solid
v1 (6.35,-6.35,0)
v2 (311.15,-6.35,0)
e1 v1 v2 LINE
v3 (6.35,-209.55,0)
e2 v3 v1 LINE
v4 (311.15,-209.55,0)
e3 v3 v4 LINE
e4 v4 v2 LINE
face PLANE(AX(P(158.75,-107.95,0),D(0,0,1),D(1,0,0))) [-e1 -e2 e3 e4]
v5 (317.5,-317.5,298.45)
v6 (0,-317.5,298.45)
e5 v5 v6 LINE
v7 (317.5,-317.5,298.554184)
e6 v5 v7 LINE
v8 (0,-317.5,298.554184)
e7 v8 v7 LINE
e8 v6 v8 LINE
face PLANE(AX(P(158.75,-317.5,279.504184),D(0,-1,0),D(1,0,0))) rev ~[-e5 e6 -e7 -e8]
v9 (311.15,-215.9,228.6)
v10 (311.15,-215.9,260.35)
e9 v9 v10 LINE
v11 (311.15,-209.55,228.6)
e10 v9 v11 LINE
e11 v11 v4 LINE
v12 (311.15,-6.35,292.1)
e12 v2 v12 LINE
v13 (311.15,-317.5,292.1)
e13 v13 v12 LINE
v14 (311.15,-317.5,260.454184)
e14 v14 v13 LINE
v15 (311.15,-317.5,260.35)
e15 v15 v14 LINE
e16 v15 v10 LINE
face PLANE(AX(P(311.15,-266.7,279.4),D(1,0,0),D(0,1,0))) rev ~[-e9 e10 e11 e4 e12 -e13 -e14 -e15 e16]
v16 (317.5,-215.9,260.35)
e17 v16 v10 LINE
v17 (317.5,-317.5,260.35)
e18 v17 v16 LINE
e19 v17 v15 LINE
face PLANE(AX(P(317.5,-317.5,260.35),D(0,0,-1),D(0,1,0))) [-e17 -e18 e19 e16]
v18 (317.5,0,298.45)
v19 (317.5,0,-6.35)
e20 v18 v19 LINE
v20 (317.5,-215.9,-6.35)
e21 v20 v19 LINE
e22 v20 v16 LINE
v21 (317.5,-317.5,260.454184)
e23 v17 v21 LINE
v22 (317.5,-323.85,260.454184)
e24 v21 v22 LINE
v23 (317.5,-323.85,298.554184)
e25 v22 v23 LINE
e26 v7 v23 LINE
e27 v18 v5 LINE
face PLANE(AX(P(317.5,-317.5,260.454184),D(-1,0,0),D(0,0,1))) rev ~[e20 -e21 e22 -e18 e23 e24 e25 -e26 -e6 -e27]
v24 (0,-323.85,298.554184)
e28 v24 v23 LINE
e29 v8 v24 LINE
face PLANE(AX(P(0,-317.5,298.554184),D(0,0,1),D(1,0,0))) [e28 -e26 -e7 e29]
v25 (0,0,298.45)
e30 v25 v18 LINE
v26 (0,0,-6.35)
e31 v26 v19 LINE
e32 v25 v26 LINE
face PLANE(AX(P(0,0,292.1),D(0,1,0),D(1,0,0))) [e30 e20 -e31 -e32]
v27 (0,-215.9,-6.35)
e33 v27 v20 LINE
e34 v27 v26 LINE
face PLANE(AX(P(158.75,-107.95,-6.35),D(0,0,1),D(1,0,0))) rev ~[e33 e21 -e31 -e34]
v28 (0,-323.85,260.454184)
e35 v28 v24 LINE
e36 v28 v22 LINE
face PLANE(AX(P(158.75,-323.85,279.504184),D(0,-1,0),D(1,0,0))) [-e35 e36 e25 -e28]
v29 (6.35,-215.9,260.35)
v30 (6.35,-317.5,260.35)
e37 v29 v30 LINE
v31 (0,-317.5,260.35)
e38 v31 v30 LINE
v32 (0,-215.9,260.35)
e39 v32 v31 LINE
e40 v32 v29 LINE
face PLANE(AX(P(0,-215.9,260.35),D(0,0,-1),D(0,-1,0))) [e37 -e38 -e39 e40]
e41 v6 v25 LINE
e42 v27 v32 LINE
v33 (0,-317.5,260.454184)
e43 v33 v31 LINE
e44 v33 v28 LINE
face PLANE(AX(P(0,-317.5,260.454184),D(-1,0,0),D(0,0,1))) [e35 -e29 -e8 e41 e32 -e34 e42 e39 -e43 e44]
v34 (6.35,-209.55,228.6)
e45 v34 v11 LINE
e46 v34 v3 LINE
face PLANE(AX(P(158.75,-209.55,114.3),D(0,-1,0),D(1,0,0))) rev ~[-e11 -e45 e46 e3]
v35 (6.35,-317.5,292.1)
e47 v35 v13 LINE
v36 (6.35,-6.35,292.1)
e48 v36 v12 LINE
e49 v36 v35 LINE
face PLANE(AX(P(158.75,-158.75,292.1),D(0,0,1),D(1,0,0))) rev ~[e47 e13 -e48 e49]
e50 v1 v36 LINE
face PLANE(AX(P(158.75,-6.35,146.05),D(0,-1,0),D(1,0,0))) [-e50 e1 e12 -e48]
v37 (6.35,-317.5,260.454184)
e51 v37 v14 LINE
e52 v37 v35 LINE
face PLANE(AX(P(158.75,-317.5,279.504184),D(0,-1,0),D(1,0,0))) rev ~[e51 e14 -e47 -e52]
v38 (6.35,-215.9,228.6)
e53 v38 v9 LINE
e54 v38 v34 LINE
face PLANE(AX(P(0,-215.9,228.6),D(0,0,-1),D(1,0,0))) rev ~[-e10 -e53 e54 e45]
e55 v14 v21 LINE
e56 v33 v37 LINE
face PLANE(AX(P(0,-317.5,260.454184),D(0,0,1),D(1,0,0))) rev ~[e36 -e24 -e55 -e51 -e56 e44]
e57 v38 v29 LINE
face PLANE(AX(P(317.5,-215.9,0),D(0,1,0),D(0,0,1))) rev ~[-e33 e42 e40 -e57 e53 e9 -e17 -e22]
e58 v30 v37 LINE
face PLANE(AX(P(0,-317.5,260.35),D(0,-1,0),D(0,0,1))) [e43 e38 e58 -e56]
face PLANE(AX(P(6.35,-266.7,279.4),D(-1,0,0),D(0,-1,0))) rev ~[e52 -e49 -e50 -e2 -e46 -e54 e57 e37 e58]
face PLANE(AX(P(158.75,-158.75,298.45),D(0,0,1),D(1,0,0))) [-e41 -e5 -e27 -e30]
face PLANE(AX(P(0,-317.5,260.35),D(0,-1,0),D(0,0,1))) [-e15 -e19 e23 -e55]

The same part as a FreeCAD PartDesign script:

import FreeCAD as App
import Part
import Sketcher
from FreeCAD import Vector
Q = App.Units.Quantity


def add_polygon(sketch, points):
    """Adds a closed chain of lines whose ends are joined by coincident constraints."""
    first, n = sketch.GeometryCount, len(points)
    for a, b in zip(points, points[1:] + points[:1]):
        sketch.addGeometry(Part.LineSegment(App.Vector(*a, 0), App.Vector(*b, 0)), False)
    for i in range(n):
        sketch.addConstraint(Sketcher.Constraint("Coincident", first + i, 2, first + (i + 1) % n, 1))

doc = App.newDocument("Part")
body = doc.addObject("PartDesign::Body", "Body")

# Sketch on XY plane
sketch1 = body.newObject("Sketcher::SketchObject", "Sketch")
sketch1.AttachmentSupport = (doc.getObject("XY_Plane"), [""])
sketch1.MapMode = "FlatFace"
add_polygon(sketch1, [(0, 0), (0, -216), (318, -216), (318, 0)])  # lines 0-3
sketch1.addConstraint([
    Sketcher.Constraint("Vertical", 0),
    Sketcher.Constraint("Horizontal", 1),
    Sketcher.Constraint("Vertical", 2),
    Sketcher.Constraint("Horizontal", 3),
    Sketcher.Constraint("Coincident", 3, 2, -1, 1),
    Sketcher.Constraint("DistanceX", 1, 1, 1, 2, Q("12.5 in")),
    Sketcher.Constraint("DistanceY", 0, 2, 0, 1, Q("8.5 in")),
])
pad1 = body.newObject("PartDesign::Pad", "Pad")
pad1.Profile = sketch1
pad1.Length = Q("0.25 in")
pad1.Reversed = True

# Sketch on XZ plane
sketch2 = body.newObject("Sketcher::SketchObject", "Sketch001")
sketch2.AttachmentSupport = (doc.getObject("XZ_Plane"), [""])
sketch2.MapMode = "FlatFace"
add_polygon(sketch2, [(0, 292), (0, 0), (318, 0), (318, 292)])  # lines 0-3
sketch2.addConstraint([
    Sketcher.Constraint("Vertical", 0),
    Sketcher.Constraint("Horizontal", 1),
    Sketcher.Constraint("Vertical", 2),
    Sketcher.Constraint("Horizontal", 3),
    Sketcher.Constraint("Coincident", 0, 2, -1, 1),
    Sketcher.Constraint("DistanceX", 1, 1, 1, 2, Q("12.5 in")),
    Sketcher.Constraint("DistanceY", 0, 2, 0, 1, Q("11.5 in")),
])
pad2 = body.newObject("PartDesign::Pad", "Pad001")
pad2.Profile = sketch2
pad2.Length = Q("0.25 in")

# Sketch on YZ plane
sketch3 = body.newObject("Sketcher::SketchObject", "Sketch002")
sketch3.AttachmentSupport = (doc.getObject("YZ_Plane"), [""])
sketch3.MapMode = "FlatFace"
add_polygon(sketch3, [(-216, 292), (-216, 0), (0, 0), (0, 292)])  # lines 0-3
sketch3.addConstraint([
    Sketcher.Constraint("Vertical", 0),
    Sketcher.Constraint("Horizontal", 1),
    Sketcher.Constraint("Vertical", 2),
    Sketcher.Constraint("Horizontal", 3),
    Sketcher.Constraint("Coincident", 1, 2, -1, 1),
    Sketcher.Constraint("DistanceX", 1, 1, 1, 2, Q("8.5 in")),
    Sketcher.Constraint("DistanceY", 0, 2, 0, 1, Q("11.5 in")),
])
pad3 = body.newObject("PartDesign::Pad", "Pad002")
pad3.Profile = sketch3
pad3.Length = Q("0.25 in")

# Sketch on YZ plane
sketch4 = body.newObject("Sketcher::SketchObject", "Sketch003")
sketch4.AttachmentSupport = (doc.getObject("YZ_Plane"), [""])
sketch4.MapMode = "FlatFace"
sketch4.AttachmentOffset = App.Placement(Vector(0, 0, 12.5 * 25.4), App.Rotation())
add_polygon(sketch4, [(-216, 292), (-216, 0), (0, 0), (0, 292)])  # lines 0-3
sketch4.addConstraint([
    Sketcher.Constraint("Vertical", 0),
    Sketcher.Constraint("Horizontal", 1),
    Sketcher.Constraint("Vertical", 2),
    Sketcher.Constraint("Horizontal", 3),
    Sketcher.Constraint("Coincident", 1, 2, -1, 1),
    Sketcher.Constraint("DistanceX", 1, 1, 1, 2, Q("8.5 in")),
    Sketcher.Constraint("DistanceY", 0, 2, 0, 1, Q("11.5 in")),
])
pad4 = body.newObject("PartDesign::Pad", "Pad003")
pad4.Profile = sketch4
pad4.Length = Q("0.25 in")
pad4.Reversed = True

# Sketch on XY plane
sketch5 = body.newObject("Sketcher::SketchObject", "Sketch004")
sketch5.AttachmentSupport = (doc.getObject("XY_Plane"), [""])
sketch5.MapMode = "FlatFace"
sketch5.AttachmentOffset = App.Placement(Vector(0, 0, 11.5 * 25.4), App.Rotation())
add_polygon(sketch5, [(0, 0), (0, -318), (318, -318), (318, 0)])  # lines 0-3
sketch5.addConstraint([
    Sketcher.Constraint("Vertical", 0),
    Sketcher.Constraint("Horizontal", 1),
    Sketcher.Constraint("Vertical", 2),
    Sketcher.Constraint("Horizontal", 3),
    Sketcher.Constraint("Coincident", 3, 2, -1, 1),
    Sketcher.Constraint("Equal", 3, 0),
    Sketcher.Constraint("DistanceX", 1, 1, 1, 2, Q("12.5 in")),
])
pad5 = body.newObject("PartDesign::Pad", "Pad004")
pad5.Profile = sketch5
pad5.Length = Q("0.25 in")

# Sketch on XZ plane
sketch6 = body.newObject("Sketcher::SketchObject", "Sketch005")
sketch6.AttachmentSupport = (doc.getObject("XZ_Plane"), [""])
sketch6.MapMode = "FlatFace"
sketch6.AttachmentOffset = App.Placement(Vector(0, 0, 8.5 * 25.4), App.Rotation())
add_polygon(sketch6, [(0, 229), (0, 0), (318, 0), (318, 229)])  # lines 0-3
sketch6.addConstraint([
    Sketcher.Constraint("Vertical", 0),
    Sketcher.Constraint("Horizontal", 1),
    Sketcher.Constraint("Vertical", 2),
    Sketcher.Constraint("Horizontal", 3),
    Sketcher.Constraint("Coincident", 0, 2, -1, 1),
    Sketcher.Constraint("DistanceY", 0, 2, 0, 1, Q("9 in")),
    Sketcher.Constraint("DistanceX", 1, 1, 1, 2, Q("12.5 in")),
])
pad6 = body.newObject("PartDesign::Pad", "Pad005")
pad6.Profile = sketch6
pad6.Length = Q("0.25 in")
pad6.Reversed = True

# Sketch on YZ plane
sketch7 = body.newObject("Sketcher::SketchObject", "Sketch006")
sketch7.AttachmentSupport = (doc.getObject("YZ_Plane"), [""])
sketch7.MapMode = "FlatFace"
sketch7.AttachmentOffset = App.Placement(Vector(0, 0, 12.5 * 25.4), App.Rotation())
add_polygon(sketch7, [(-318, 298), (-318, 260), (-216, 260), (-216, 298)])  # lines 0-3
sketch7.addConstraint([
    Sketcher.Constraint("Vertical", 0),
    Sketcher.Constraint("Horizontal", 1),
    Sketcher.Constraint("Vertical", 2),
    Sketcher.Constraint("Horizontal", 3),
    Sketcher.Constraint("DistanceX", 1, 1, 1, 2, Q("4 in")),
    Sketcher.Constraint("DistanceY", 0, 2, 0, 1, Q("1.5 in")),
    Sketcher.Constraint("DistanceX", 0, 2, -1, 1, Q("12.5 in")),
    Sketcher.Constraint("DistanceY", -1, 1, 0, 2, Q("10.25 in")),
])
pad7 = body.newObject("PartDesign::Pad", "Pad006")
pad7.Profile = sketch7
pad7.Length = Q("0.25 in")
pad7.Reversed = True

# Sketch on YZ plane
sketch8 = body.newObject("Sketcher::SketchObject", "Sketch007")
sketch8.AttachmentSupport = (doc.getObject("YZ_Plane"), [""])
sketch8.MapMode = "FlatFace"
add_polygon(sketch8, [(-216, 298), (-216, 260), (-318, 260), (-318, 298)])  # lines 0-3
sketch8.addConstraint([
    Sketcher.Constraint("Vertical", 0),
    Sketcher.Constraint("Horizontal", 1),
    Sketcher.Constraint("Vertical", 2),
    Sketcher.Constraint("Horizontal", 3),
    Sketcher.Constraint("DistanceX", 1, 2, 1, 1, Q("4 in")),
    Sketcher.Constraint("DistanceY", 0, 2, 0, 1, Q("1.5 in")),
    Sketcher.Constraint("DistanceX", 0, 2, -1, 1, Q("8.5 in")),
    Sketcher.Constraint("DistanceY", -1, 1, 0, 2, Q("10.25 in")),
])
pad8 = body.newObject("PartDesign::Pad", "Pad007")
pad8.Profile = sketch8
pad8.Length = Q("0.25 in")

# Sketch on XZ plane
sketch9 = body.newObject("Sketcher::SketchObject", "Sketch008")
sketch9.AttachmentSupport = (doc.getObject("XZ_Plane"), [""])
sketch9.MapMode = "FlatFace"
sketch9.AttachmentOffset = App.Placement(Vector(0, 0, 12.5 * 25.4), App.Rotation())
add_polygon(sketch9, [(0, 299), (0, 260), (318, 260), (318, 299)])  # lines 0-3
sketch9.addConstraint([
    Sketcher.Constraint("Vertical", 0),
    Sketcher.Constraint("Horizontal", 1),
    Sketcher.Constraint("Vertical", 2),
    Sketcher.Constraint("Horizontal", 3),
    Sketcher.Constraint("PointOnObject", 0, 2, -2),
    Sketcher.Constraint("DistanceX", 1, 1, 1, 2, Q("12.5 in")),
    Sketcher.Constraint("DistanceY", 0, 2, 0, 1, Q("1.5 in")),
    Sketcher.Constraint("DistanceY", -1, 1, 0, 2, Q("260.454184 mm")),
])
pad9 = body.newObject("PartDesign::Pad", "Pad008")
pad9.Profile = sketch9
pad9.Length = Q("0.25 in")

doc.recompute()
